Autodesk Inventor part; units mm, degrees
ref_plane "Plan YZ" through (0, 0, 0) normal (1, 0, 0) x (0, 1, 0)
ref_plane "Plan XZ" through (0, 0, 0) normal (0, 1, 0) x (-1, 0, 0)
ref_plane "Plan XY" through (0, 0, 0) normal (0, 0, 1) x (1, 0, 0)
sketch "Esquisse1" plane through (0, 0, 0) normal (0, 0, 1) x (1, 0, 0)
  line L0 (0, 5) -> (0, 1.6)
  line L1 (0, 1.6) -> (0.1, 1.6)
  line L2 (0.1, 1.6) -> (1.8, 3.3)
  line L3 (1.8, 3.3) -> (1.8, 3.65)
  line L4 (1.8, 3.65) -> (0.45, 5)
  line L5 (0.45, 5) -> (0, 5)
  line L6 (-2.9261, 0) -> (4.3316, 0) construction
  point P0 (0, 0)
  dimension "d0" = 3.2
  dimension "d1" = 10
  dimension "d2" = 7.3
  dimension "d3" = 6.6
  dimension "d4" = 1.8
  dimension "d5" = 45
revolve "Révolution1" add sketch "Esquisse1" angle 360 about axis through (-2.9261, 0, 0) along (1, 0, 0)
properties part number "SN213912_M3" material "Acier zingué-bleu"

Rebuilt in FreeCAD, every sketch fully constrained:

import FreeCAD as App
import Part
import Sketcher

V = App.Vector
Q = App.Units.Quantity


def add_polygon(sketch, points):
    """Adds a closed chain of lines whose ends are joined by coincident constraints."""
    first, n = sketch.GeometryCount, len(points)
    for a, b in zip(points, points[1:] + points[:1]):
        sketch.addGeometry(Part.LineSegment(App.Vector(*a, 0), App.Vector(*b, 0)), False)
    for i in range(n):
        sketch.addConstraint(Sketcher.Constraint("Coincident", first + i, 2, first + (i + 1) % n, 1))

doc = App.newDocument("Part")
body = doc.addObject("PartDesign::Body", "Body")

sketch1 = body.newObject("Sketcher::SketchObject", "Sketch")
sketch1.AttachmentSupport = (doc.getObject("XY_Plane"), [""])
sketch1.MapMode = "FlatFace"
add_polygon(sketch1, [(0.45, 5), (0, 5), (0, 1.6), (0.1, 1.6), (1.8, 3.3), (1.8, 3.65)])
sketch1.addConstraint(Sketcher.Constraint("Horizontal", 0))
sketch1.addConstraint(Sketcher.Constraint("Vertical", 1))
sketch1.addConstraint(Sketcher.Constraint("Horizontal", 2))
sketch1.addConstraint(Sketcher.Constraint("Vertical", 4))
sketch1.addConstraint(Sketcher.Constraint("PointOnObject", 0, 2, -2))
sketch1.addConstraint(Sketcher.Constraint("Perpendicular", 3, 5))
sketch1.addConstraint(Sketcher.Constraint("Angle", 3, Q("45 deg")))
sketch1.addConstraint(Sketcher.Constraint("DistanceX", -1, 1, 3, 2, Q("1.8 mm")))
sketch1.addConstraint(Sketcher.Constraint("DistanceX", 2, 1, 2, 2, Q("0.1 mm")))
sketch1.addConstraint(Sketcher.Constraint("DistanceY", 1, 2, 1, 1, Q("3.4 mm")))
sketch1.addConstraint(Sketcher.Constraint("DistanceY", -1, 1, 0, 2, Q("5 mm")))
sketch1.addConstraint(Sketcher.Constraint("DistanceX", 0, 2, 0, 1, Q("0.45 mm")))
revolution = body.newObject("PartDesign::Revolution", "Revolution")
revolution.Profile = sketch1
revolution.ReferenceAxis = (sketch1, ["H_Axis"])
revolution.Angle = 360

doc.recompute()
